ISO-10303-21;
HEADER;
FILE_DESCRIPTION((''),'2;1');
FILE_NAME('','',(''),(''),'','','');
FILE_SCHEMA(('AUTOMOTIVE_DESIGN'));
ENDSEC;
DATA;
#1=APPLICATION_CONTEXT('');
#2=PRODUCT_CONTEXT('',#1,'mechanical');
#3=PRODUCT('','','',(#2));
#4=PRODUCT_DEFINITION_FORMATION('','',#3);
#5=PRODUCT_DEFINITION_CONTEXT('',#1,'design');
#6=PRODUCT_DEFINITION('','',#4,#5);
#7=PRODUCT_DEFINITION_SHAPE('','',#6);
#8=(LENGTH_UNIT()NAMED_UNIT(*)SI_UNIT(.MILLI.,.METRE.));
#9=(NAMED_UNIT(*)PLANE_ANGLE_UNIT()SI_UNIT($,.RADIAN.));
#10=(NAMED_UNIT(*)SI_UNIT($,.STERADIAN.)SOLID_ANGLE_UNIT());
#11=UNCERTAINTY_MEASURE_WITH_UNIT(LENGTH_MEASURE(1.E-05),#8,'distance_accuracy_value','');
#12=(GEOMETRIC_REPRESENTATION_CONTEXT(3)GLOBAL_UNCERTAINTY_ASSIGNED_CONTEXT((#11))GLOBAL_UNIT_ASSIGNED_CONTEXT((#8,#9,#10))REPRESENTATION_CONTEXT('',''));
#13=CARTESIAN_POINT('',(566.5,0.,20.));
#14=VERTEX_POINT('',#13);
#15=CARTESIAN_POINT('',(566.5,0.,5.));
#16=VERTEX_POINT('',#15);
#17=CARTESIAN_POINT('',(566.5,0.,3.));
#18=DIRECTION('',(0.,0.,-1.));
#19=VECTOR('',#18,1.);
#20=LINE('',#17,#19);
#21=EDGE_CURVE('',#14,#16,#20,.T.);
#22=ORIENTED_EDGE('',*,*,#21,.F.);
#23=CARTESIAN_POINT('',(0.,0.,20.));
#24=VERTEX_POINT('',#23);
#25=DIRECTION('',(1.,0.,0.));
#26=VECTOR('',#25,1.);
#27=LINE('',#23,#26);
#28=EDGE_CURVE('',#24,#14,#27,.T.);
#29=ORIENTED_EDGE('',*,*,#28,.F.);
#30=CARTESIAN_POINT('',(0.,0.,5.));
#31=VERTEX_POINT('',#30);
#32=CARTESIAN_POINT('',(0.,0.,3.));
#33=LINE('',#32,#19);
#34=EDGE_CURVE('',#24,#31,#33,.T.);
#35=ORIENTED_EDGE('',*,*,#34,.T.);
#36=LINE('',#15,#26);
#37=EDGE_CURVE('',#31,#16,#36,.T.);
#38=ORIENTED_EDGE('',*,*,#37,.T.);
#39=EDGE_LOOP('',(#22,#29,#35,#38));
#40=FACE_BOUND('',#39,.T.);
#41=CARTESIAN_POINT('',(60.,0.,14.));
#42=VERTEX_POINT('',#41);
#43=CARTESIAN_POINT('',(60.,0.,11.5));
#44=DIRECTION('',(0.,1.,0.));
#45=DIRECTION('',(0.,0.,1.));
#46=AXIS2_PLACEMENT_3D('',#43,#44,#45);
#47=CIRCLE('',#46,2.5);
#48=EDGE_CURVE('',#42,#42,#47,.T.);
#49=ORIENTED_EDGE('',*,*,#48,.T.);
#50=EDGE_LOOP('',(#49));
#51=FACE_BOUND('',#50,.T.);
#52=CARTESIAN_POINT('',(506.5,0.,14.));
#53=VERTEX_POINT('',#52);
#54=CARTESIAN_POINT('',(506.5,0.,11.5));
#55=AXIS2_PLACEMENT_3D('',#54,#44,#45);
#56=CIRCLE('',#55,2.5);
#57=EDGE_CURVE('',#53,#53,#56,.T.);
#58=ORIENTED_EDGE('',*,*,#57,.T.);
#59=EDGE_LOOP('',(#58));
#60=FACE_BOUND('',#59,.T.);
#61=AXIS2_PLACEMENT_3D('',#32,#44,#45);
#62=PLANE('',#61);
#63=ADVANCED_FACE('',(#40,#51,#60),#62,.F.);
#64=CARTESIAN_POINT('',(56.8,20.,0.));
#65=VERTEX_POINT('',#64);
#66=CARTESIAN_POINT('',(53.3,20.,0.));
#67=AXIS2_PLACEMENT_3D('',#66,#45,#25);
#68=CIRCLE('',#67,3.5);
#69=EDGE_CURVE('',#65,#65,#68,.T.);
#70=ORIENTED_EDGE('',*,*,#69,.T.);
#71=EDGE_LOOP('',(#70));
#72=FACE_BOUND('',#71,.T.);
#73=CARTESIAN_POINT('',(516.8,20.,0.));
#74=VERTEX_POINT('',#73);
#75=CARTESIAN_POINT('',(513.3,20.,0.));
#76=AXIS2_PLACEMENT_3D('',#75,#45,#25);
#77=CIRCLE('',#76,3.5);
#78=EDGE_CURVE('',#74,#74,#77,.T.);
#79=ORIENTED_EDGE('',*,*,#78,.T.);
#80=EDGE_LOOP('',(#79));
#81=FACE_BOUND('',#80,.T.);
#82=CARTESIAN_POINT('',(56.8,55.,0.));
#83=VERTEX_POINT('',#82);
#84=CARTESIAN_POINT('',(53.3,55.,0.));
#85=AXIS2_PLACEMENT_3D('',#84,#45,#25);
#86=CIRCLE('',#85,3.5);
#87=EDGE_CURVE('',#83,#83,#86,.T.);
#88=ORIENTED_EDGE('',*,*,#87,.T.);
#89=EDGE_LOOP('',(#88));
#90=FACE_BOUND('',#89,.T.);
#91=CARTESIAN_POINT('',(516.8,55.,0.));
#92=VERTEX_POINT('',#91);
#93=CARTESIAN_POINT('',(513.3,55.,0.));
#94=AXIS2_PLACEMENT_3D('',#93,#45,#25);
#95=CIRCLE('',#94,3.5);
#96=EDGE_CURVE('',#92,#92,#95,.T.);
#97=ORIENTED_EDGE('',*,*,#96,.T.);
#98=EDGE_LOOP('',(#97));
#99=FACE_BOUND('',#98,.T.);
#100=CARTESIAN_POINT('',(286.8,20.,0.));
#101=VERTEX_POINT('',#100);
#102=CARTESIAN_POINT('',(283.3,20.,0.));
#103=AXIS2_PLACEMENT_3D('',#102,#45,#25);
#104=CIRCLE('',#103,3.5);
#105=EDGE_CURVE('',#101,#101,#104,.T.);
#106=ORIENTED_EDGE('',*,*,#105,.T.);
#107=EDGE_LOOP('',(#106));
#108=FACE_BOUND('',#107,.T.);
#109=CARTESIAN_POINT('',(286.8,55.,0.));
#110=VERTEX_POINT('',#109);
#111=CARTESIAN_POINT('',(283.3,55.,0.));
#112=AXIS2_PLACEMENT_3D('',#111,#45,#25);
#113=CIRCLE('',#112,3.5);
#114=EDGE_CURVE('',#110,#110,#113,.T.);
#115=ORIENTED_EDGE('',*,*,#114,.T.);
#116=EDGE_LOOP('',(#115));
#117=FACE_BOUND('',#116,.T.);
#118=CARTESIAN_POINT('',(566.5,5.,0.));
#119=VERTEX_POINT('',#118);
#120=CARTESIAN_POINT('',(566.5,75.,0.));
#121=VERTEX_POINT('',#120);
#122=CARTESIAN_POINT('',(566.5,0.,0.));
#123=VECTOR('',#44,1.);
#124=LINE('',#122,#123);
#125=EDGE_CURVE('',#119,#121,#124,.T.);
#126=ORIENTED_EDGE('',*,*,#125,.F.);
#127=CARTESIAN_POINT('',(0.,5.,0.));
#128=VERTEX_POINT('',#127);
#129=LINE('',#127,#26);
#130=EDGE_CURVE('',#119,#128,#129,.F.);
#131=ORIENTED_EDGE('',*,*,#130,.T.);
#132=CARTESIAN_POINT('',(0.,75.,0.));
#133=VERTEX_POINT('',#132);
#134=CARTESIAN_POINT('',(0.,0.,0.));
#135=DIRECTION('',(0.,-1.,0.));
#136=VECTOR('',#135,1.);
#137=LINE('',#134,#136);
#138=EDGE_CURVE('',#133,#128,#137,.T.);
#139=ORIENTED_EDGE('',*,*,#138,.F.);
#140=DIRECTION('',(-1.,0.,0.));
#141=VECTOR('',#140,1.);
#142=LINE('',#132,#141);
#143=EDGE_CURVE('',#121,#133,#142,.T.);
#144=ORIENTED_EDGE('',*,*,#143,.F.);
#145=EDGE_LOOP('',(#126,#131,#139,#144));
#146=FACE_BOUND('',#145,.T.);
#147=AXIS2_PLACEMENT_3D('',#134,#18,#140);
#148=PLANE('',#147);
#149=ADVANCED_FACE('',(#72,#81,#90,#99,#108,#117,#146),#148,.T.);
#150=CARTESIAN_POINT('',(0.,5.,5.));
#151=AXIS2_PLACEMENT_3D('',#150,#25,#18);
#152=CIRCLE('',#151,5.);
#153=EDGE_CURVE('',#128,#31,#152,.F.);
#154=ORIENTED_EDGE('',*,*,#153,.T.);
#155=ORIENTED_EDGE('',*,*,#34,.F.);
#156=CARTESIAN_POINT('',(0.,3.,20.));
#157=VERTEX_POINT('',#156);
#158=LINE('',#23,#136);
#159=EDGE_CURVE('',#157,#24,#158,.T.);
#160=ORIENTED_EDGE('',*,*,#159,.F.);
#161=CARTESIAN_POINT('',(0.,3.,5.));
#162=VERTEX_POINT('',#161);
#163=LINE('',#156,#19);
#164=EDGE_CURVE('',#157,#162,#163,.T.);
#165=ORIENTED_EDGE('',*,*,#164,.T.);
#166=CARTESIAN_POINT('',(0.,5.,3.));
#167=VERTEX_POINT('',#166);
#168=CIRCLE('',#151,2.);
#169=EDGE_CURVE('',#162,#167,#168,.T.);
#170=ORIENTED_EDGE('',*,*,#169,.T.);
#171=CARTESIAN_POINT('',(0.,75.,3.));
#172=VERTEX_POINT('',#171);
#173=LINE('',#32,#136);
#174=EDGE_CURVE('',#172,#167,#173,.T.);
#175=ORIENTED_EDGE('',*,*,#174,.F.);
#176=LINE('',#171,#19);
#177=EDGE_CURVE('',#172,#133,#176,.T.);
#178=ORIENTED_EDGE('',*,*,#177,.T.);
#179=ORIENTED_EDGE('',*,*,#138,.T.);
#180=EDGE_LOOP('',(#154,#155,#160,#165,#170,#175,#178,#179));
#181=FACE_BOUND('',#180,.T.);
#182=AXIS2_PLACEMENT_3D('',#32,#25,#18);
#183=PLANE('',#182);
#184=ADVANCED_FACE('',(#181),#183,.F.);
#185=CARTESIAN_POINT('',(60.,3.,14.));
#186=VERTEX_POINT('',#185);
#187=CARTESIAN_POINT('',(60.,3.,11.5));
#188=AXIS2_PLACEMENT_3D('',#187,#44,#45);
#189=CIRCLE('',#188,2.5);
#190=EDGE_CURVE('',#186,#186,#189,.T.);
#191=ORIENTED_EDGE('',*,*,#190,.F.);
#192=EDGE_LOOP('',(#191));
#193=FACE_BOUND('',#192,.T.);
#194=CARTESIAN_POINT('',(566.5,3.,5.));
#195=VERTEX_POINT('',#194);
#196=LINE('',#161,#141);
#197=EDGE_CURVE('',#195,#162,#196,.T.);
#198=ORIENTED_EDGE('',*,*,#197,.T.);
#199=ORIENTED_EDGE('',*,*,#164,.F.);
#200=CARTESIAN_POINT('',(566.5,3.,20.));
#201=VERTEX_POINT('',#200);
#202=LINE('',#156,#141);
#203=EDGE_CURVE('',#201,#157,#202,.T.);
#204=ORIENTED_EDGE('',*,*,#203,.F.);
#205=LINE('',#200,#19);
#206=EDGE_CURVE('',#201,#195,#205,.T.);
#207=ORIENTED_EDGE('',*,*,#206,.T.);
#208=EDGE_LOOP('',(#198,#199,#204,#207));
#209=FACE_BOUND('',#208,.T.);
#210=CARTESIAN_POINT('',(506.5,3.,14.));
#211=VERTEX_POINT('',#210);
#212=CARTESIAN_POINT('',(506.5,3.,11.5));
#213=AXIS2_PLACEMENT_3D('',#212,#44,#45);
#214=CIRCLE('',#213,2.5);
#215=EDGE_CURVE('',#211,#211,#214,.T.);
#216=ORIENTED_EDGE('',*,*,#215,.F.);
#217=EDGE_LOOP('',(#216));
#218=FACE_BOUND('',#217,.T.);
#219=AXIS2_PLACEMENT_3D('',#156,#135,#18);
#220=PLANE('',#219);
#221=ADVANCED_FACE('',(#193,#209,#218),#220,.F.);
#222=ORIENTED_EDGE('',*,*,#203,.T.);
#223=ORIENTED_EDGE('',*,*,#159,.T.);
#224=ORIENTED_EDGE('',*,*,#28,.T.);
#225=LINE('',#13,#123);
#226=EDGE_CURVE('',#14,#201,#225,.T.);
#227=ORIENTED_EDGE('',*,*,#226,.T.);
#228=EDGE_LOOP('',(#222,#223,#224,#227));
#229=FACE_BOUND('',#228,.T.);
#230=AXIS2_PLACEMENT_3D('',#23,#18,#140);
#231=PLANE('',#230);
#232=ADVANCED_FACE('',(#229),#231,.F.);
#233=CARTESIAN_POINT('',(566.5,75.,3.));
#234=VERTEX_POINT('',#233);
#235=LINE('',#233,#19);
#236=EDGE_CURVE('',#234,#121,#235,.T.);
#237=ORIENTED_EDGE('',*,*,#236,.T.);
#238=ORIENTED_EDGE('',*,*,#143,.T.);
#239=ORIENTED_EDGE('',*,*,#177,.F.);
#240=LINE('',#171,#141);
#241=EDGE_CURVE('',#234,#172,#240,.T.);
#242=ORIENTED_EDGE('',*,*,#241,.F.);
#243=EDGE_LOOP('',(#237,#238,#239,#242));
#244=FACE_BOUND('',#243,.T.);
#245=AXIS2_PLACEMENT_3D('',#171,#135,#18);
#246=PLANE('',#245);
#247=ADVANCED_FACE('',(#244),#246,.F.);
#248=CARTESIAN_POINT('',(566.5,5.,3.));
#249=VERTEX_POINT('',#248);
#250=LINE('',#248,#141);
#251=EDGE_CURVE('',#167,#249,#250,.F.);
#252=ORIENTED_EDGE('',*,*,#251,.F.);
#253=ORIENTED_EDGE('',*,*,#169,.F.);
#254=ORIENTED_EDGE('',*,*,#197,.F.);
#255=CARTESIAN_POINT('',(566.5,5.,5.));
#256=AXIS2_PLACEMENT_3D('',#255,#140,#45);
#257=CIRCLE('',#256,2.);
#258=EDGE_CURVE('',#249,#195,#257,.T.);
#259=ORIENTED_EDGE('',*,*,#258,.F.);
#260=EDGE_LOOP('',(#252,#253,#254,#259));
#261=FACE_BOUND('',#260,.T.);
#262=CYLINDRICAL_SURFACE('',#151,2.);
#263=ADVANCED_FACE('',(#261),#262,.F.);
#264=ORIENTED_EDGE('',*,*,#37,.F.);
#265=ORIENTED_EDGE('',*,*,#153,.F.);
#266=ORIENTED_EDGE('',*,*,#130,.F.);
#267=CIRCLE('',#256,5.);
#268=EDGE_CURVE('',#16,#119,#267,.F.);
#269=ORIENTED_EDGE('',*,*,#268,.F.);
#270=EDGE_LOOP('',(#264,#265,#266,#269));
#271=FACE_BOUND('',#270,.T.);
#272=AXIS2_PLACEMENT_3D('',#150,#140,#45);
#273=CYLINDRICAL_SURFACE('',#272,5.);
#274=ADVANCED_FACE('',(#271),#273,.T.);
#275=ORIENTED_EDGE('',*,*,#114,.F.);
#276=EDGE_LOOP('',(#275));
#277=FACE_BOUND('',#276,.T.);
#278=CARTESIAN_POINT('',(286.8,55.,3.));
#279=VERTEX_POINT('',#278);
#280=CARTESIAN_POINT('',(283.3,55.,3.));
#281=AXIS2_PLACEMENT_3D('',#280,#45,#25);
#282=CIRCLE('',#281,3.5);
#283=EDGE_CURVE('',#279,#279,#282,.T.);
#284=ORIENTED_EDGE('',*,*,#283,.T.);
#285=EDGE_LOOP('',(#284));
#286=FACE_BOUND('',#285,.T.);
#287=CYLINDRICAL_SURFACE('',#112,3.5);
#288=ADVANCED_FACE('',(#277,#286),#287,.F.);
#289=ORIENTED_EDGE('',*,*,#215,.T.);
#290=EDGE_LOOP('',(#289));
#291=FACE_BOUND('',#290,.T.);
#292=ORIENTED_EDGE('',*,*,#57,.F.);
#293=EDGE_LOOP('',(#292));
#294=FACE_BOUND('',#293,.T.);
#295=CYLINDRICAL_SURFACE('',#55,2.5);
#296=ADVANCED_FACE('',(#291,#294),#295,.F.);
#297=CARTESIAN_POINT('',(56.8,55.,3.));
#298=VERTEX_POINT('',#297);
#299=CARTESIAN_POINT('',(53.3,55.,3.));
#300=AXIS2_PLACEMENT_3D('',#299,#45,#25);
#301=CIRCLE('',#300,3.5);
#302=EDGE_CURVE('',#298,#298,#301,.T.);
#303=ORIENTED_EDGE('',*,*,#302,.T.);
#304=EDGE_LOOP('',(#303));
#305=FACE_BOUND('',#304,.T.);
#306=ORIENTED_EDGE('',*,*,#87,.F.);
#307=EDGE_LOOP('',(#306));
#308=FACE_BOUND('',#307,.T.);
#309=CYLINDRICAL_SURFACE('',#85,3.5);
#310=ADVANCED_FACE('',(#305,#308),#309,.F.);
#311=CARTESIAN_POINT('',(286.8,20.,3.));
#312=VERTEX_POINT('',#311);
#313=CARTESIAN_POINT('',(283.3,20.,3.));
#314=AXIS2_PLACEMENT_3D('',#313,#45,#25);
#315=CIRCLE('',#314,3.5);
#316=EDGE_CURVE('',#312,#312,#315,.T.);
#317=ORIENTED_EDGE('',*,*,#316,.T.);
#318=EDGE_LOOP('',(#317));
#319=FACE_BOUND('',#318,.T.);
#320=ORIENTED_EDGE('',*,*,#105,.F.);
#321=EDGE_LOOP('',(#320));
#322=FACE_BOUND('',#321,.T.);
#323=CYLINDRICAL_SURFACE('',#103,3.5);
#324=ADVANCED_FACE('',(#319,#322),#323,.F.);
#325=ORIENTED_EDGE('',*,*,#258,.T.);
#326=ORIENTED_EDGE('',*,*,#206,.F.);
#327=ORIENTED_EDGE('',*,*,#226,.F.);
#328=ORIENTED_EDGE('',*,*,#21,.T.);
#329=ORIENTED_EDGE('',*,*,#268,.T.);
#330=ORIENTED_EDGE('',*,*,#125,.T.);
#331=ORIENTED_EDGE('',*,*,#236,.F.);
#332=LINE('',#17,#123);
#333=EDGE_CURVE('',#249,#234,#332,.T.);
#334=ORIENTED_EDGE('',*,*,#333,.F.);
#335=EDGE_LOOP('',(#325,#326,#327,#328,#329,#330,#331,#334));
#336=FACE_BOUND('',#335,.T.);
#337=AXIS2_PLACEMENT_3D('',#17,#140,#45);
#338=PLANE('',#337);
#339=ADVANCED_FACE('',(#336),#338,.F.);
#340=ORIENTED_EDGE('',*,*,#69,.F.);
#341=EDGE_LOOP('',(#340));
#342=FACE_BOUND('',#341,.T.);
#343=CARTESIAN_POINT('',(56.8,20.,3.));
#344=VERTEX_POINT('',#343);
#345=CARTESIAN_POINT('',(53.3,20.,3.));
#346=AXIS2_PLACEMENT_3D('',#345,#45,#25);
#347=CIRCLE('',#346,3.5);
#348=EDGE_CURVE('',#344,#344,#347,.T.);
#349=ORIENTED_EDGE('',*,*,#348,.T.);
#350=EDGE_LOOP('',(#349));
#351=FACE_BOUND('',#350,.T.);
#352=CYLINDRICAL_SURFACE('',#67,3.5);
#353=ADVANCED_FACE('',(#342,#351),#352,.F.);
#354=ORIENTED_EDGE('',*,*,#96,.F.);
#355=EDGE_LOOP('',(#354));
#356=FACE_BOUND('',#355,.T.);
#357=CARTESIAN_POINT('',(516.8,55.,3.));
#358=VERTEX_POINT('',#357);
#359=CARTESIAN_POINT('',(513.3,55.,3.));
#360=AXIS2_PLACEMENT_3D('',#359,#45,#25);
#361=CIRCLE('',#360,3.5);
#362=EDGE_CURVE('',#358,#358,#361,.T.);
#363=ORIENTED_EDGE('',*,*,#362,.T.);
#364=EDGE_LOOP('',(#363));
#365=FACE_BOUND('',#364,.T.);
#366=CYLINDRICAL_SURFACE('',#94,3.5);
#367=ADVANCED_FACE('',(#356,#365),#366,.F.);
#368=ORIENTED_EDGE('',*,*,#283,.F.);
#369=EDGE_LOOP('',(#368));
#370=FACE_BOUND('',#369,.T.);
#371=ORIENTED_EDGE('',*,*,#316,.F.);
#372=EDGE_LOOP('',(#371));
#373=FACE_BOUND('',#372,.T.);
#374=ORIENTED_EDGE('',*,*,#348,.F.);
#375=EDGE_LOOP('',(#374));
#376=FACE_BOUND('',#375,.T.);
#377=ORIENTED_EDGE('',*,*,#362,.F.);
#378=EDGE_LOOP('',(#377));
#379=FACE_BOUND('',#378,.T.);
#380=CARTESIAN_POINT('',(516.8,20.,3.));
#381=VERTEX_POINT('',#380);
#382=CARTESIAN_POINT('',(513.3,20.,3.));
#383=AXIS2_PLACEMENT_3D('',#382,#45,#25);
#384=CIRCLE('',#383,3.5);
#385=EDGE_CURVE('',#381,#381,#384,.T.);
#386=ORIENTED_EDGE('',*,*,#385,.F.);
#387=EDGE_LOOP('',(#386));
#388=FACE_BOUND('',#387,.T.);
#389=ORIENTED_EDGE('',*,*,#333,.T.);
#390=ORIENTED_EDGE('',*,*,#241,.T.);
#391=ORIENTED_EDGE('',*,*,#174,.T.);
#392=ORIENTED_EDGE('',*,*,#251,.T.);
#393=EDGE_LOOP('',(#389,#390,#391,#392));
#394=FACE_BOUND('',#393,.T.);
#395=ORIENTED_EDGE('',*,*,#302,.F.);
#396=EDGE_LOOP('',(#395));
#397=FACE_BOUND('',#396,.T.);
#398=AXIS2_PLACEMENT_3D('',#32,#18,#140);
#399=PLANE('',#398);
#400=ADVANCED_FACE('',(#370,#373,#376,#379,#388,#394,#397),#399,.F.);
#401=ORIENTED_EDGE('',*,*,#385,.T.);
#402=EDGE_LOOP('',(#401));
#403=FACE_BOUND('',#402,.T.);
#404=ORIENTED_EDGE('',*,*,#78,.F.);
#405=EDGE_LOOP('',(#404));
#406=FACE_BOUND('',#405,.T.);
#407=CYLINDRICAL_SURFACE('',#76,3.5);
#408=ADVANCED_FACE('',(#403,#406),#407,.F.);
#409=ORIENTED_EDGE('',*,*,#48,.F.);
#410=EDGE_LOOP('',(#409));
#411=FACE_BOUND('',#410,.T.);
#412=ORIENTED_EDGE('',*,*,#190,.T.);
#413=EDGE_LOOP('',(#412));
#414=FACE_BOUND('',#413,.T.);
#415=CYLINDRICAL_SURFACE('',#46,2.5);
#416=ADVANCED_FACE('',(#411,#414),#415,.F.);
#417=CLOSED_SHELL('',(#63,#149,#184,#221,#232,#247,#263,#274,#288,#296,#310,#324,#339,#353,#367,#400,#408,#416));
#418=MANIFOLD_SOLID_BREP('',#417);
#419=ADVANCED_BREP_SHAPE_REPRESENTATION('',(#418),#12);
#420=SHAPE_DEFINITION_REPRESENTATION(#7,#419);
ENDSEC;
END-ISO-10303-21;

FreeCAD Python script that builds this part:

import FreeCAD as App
import Part
import Sketcher
from FreeCAD import Vector
Q = App.Units.Quantity


def edges_at(feature, points):
    """Names of the edges that pass closest to the given points."""
    edges = feature.Shape.Edges
    near = lambda p: min(range(len(edges)), key=lambda i: edges[i].distToShape(Part.Vertex(*p))[0])
    return sorted({f"Edge{near(p) + 1}" for p in points})

doc = App.newDocument("Part")
body = doc.addObject("PartDesign::Body", "Body")

sketch1 = doc.addObject("Sketcher::SketchObject", "Sketch")
body.addObject(sketch1)
sketch1.AttachmentSupport = (doc.XY_Plane, [""])
sketch1.MapMode = "FlatFace"
sketch1.addGeometry(Part.LineSegment(Vector(0, 75, 0), Vector(0, 0, 0)), False)
sketch1.addGeometry(Part.LineSegment(Vector(0, 0, 0), Vector(566, 0, 0)), False)
sketch1.addGeometry(Part.LineSegment(Vector(566, 0, 0), Vector(566, 75, 0)), False)
sketch1.addGeometry(Part.LineSegment(Vector(566, 75, 0), Vector(0, 75, 0)), False)
sketch1.addConstraint(Sketcher.Constraint("Coincident", 0, 2, 1, 1))
sketch1.addConstraint(Sketcher.Constraint("Coincident", 1, 2, 2, 1))
sketch1.addConstraint(Sketcher.Constraint("Coincident", 2, 2, 3, 1))
sketch1.addConstraint(Sketcher.Constraint("Coincident", 3, 2, 0, 1))
sketch1.addConstraint(Sketcher.Constraint("Vertical", 0))
sketch1.addConstraint(Sketcher.Constraint("Horizontal", 1))
sketch1.addConstraint(Sketcher.Constraint("Vertical", 2))
sketch1.addConstraint(Sketcher.Constraint("Horizontal", 3))
sketch1.addConstraint(Sketcher.Constraint("Coincident", 0, 2, -1, 1))
sketch1.addConstraint(Sketcher.Constraint("DistanceY", 0, 2, 0, 1, Q("75 mm")))
sketch1.addConstraint(Sketcher.Constraint("DistanceX", 1, 1, 1, 2, Q("566.5 mm")))
pad1 = doc.addObject("PartDesign::Pad", "Pad")
body.addObject(pad1)
pad1.Profile = sketch1
pad1.Length = 3

sketch2 = doc.addObject("Sketcher::SketchObject", "Sketch001")
body.addObject(sketch2)
sketch2.AttachmentSupport = (doc.XY_Plane, [""])
sketch2.MapMode = "FlatFace"
sketch2.AttachmentOffset = App.Placement(Vector(0, 0, 3), App.Rotation())
sketch2.addGeometry(Part.LineSegment(Vector(0, 3, 0), Vector(0, 0, 0)), False)
sketch2.addGeometry(Part.LineSegment(Vector(0, 0, 0), Vector(566.5, 0, 0)), False)
sketch2.addGeometry(Part.LineSegment(Vector(566.5, 0, 0), Vector(566.5, 3, 0)), False)
sketch2.addGeometry(Part.LineSegment(Vector(566.5, 3, 0), Vector(0, 3, 0)), False)
sketch2.addConstraint(Sketcher.Constraint("Coincident", 0, 2, 1, 1))
sketch2.addConstraint(Sketcher.Constraint("Coincident", 1, 2, 2, 1))
sketch2.addConstraint(Sketcher.Constraint("Coincident", 2, 2, 3, 1))
sketch2.addConstraint(Sketcher.Constraint("Coincident", 3, 2, 0, 1))
sketch2.addConstraint(Sketcher.Constraint("Vertical", 0))
sketch2.addConstraint(Sketcher.Constraint("Horizontal", 1))
sketch2.addConstraint(Sketcher.Constraint("Vertical", 2))
sketch2.addConstraint(Sketcher.Constraint("Horizontal", 3))
sketch2.addConstraint(Sketcher.Constraint("Coincident", 0, 2, -1, 1))
sketch2.addConstraint(Sketcher.Constraint("DistanceY", 0, 2, 0, 1, Q("3 mm")))
sketch2.addConstraint(Sketcher.Constraint("DistanceX", 1, 1, 1, 2, Q("566.5 mm")))
pad2 = doc.addObject("PartDesign::Pad", "Pad001")
body.addObject(pad2)
pad2.Profile = sketch2
pad2.Length = 17

sketch3 = doc.addObject("Sketcher::SketchObject", "Sketch002")
body.addObject(sketch3)
sketch3.AttachmentSupport = (doc.XY_Plane, [""])
sketch3.MapMode = "FlatFace"
sketch3.AttachmentOffset = App.Placement(Vector(0, 0, 3), App.Rotation())
sketch3.addGeometry(Part.Circle(Vector(53.3, 55, 0), Vector(0, 0, 1), 3.5), False)
sketch3.addGeometry(Part.Circle(Vector(53.3, 20, 0), Vector(0, 0, 1), 3.5), False)
sketch3.addGeometry(Part.Circle(Vector(283.3, 55, 0), Vector(0, 0, 1), 3.5), False)
sketch3.addGeometry(Part.Circle(Vector(283.3, 20, 0), Vector(0, 0, 1), 3.5), False)
sketch3.addGeometry(Part.Circle(Vector(513.3, 55, 0), Vector(0, 0, 1), 3.5), False)
sketch3.addGeometry(Part.Circle(Vector(513.3, 20, 0), Vector(0, 0, 1), 3.5), False)
sketch3.addConstraint(Sketcher.Constraint("Equal", 0, 1))
sketch3.addConstraint(Sketcher.Constraint("Equal", 1, 2))
sketch3.addConstraint(Sketcher.Constraint("Equal", 2, 3))
sketch3.addConstraint(Sketcher.Constraint("Equal", 3, 4))
sketch3.addConstraint(Sketcher.Constraint("Equal", 4, 5))
sketch3.addConstraint(Sketcher.Constraint("Horizontal", 0, 3, 2, 3))
sketch3.addConstraint(Sketcher.Constraint("Horizontal", 1, 3, 3, 3))
sketch3.addConstraint(Sketcher.Constraint("Horizontal", 2, 3, 4, 3))
sketch3.addConstraint(Sketcher.Constraint("Horizontal", 3, 3, 5, 3))
sketch3.addConstraint(Sketcher.Constraint("Vertical", 0, 3, 1, 3))
sketch3.addConstraint(Sketcher.Constraint("Vertical", 2, 3, 3, 3))
sketch3.addConstraint(Sketcher.Constraint("Vertical", 4, 3, 5, 3))
sketch3.addConstraint(Sketcher.Constraint("Diameter", 0, Q("7 mm")))
sketch3.addConstraint(Sketcher.Constraint("DistanceY", -1, 1, 0, 3, Q("55 mm")))
sketch3.addConstraint(Sketcher.Constraint("DistanceY", -1, 1, 1, 3, Q("20 mm")))
sketch3.addConstraint(Sketcher.Constraint("DistanceX", 0, 3, 2, 3, Q("230 mm")))
sketch3.addConstraint(Sketcher.Constraint("DistanceX", 2, 3, 4, 3, Q("230 mm")))
sketch3.addConstraint(Sketcher.Constraint("DistanceX", -1, 1, 0, 3, Q("53.3 mm")))
pocket1 = doc.addObject("PartDesign::Pocket", "Pocket")
body.addObject(pocket1)
pocket1.Profile = sketch3
pocket1.Type = "ThroughAll"

sketch4 = doc.addObject("Sketcher::SketchObject", "Sketch003")
body.addObject(sketch4)
sketch4.AttachmentSupport = (doc.XZ_Plane, [""])
sketch4.MapMode = "FlatFace"
sketch4.AttachmentOffset = App.Placement(Vector(0, 0, -3), App.Rotation())
sketch4.addGeometry(Part.Circle(Vector(60, 11.5, 0), Vector(0, 0, 1), 2.5), False)
sketch4.addGeometry(Part.Circle(Vector(506.5, 11.5, 0), Vector(0, 0, 1), 2.5), False)
sketch4.addConstraint(Sketcher.Constraint("Equal", 0, 1))
sketch4.addConstraint(Sketcher.Constraint("Horizontal", 0, 3, 1, 3))
sketch4.addConstraint(Sketcher.Constraint("Diameter", 0, Q("5 mm")))
sketch4.addConstraint(Sketcher.Constraint("DistanceX", -1, 1, 0, 3, Q("60 mm")))
sketch4.addConstraint(Sketcher.Constraint("DistanceY", -1, 1, 0, 3, Q("11.5 mm")))
sketch4.addConstraint(Sketcher.Constraint("DistanceX", -1, 1, 1, 3, Q("506.5 mm")))
pocket2 = doc.addObject("PartDesign::Pocket", "Pocket001")
body.addObject(pocket2)
pocket2.Profile = sketch4
pocket2.Type = "ThroughAll"
pocket2.Reversed = True
doc.recompute()

fillet = doc.addObject("PartDesign::Fillet", "Fillet")
body.addObject(fillet)
fillet.Base = (pocket2, edges_at(pocket2, [(283.25, 3, 3)]))
fillet.Radius = 2
doc.recompute()

fillet2 = doc.addObject("PartDesign::Fillet", "Fillet001")
body.addObject(fillet2)
fillet2.Base = (fillet, edges_at(fillet, [(283.25, 0, 0)]))
fillet2.Radius = 5

doc.recompute()
